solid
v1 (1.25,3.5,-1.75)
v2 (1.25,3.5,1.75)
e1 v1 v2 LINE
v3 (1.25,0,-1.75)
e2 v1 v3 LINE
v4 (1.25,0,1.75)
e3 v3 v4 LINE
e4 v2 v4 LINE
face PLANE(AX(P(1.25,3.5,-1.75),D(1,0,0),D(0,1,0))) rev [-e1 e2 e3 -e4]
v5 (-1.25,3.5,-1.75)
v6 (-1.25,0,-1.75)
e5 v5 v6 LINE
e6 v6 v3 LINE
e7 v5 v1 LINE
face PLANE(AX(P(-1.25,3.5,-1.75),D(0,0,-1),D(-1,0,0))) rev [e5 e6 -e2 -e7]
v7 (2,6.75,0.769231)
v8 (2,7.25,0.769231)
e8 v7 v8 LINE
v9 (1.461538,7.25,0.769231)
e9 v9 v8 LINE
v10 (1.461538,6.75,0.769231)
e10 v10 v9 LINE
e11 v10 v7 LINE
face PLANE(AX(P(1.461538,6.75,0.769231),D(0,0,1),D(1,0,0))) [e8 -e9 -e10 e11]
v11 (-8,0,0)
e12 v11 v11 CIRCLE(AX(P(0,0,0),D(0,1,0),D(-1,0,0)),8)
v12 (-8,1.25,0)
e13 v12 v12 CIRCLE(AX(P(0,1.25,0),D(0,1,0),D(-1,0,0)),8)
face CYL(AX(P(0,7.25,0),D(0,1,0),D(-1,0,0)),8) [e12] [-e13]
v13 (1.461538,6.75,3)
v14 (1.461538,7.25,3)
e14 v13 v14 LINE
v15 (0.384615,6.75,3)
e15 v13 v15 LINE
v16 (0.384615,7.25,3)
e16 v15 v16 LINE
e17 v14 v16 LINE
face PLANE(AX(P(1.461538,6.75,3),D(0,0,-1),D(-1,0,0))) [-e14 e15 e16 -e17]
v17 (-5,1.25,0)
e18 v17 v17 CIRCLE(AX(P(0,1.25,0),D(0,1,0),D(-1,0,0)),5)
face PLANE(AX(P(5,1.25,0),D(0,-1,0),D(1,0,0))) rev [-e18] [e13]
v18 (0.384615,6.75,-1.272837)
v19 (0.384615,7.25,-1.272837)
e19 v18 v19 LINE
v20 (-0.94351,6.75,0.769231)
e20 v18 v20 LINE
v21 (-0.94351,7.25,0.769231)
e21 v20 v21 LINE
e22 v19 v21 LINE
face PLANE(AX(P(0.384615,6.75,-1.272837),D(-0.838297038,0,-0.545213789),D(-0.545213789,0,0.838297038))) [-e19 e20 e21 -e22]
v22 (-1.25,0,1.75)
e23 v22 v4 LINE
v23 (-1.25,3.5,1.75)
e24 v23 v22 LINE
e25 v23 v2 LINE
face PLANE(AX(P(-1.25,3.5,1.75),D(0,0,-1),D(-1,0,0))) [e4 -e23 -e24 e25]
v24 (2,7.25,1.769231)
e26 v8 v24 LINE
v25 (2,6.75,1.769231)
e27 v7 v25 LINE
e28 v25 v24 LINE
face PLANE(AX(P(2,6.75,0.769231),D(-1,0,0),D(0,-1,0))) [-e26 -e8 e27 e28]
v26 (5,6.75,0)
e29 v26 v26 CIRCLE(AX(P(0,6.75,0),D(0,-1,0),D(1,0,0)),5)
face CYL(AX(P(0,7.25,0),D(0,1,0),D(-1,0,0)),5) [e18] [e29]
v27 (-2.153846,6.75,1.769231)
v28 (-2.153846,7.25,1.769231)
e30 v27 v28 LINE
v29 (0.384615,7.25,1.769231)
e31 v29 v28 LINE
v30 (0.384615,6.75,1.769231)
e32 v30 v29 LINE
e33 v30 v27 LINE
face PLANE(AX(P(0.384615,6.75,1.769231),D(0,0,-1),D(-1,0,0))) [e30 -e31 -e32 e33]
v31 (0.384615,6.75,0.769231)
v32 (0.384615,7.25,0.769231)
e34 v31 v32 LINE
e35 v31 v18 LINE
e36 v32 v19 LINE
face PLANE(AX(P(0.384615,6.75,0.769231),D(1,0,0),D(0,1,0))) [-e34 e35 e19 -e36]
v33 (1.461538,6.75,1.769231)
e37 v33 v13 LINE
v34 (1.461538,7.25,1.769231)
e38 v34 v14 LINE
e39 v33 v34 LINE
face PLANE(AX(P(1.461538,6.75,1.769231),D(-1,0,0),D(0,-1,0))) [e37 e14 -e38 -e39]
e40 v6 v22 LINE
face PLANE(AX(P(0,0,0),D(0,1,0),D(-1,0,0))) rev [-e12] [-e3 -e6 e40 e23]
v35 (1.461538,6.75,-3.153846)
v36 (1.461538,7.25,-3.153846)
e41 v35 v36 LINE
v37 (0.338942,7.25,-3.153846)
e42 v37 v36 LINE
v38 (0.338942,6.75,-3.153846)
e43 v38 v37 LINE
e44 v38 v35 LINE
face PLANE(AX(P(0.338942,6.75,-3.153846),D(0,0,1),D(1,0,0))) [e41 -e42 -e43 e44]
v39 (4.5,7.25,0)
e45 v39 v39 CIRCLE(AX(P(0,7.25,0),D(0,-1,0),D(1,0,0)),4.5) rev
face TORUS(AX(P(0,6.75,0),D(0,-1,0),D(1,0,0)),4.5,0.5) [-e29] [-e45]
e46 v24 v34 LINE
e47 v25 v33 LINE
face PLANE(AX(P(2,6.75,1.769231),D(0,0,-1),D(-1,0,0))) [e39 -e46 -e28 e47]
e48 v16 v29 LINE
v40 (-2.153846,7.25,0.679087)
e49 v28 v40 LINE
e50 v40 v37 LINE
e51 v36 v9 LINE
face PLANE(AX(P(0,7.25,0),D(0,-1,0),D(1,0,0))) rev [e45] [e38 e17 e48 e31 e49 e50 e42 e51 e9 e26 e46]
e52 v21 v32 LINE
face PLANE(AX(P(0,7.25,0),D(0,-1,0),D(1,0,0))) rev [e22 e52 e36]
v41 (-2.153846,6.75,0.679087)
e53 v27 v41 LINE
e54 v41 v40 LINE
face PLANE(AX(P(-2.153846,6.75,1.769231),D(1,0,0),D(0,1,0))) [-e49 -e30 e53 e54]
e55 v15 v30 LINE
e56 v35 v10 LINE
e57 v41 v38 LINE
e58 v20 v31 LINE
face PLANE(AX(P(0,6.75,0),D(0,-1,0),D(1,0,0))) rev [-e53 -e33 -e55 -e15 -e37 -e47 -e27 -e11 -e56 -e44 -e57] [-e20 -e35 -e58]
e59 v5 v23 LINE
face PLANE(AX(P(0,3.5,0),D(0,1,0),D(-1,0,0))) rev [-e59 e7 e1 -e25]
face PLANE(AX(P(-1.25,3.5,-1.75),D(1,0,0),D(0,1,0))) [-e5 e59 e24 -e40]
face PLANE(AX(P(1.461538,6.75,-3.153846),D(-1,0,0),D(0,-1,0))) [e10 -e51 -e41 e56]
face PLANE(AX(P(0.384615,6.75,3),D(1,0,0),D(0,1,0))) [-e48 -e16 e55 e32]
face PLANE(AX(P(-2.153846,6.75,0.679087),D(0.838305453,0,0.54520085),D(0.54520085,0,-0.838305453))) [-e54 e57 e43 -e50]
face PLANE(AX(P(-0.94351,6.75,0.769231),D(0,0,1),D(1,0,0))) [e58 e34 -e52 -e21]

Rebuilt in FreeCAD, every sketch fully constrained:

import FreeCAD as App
import Part
import Sketcher
Q = App.Units.Quantity


def edges_at(feature, points):
    """Names of the edges that pass closest to the given points."""
    edges = feature.Shape.Edges
    near = lambda p: min(range(len(edges)), key=lambda i: edges[i].distToShape(Part.Vertex(*p))[0])
    return sorted({f"Edge{near(p) + 1}" for p in points})

doc = App.newDocument("Part")
params = doc.addObject("Spreadsheet::Sheet", "Params")
for row, (alias, value) in enumerate([
    ("sketch1_width", "5 mm"),
    ("sketch1_width2", "8 mm"),
    ("sketch1_height", "6 mm"),
    ("sketch1_height2", "7.25 mm"),
    ("revolution_angle", "360 deg"),
    ("sketch2_width", "2.5 mm"),
    ("sketch2_height", "3.5 mm"),
    ("pocket1_length", "3.5 mm"),
    ("fillet_radius", "0.5 mm"),
    ("sketch3_height", "1 mm"),
    ("pocket2_length", "0.5 mm"),
], start=1):
    params.set(f"A{row}", alias)
    params.set(f"B{row}", "=" + value)
    params.setAlias(f"B{row}", alias)

body = doc.addObject("PartDesign::Body", "Body")

sketch1 = body.newObject("Sketcher::SketchObject", "Sketch")
sketch1.AttachmentSupport = (doc.getObject("XY_Plane"), [""])
sketch1.MapMode = "FlatFace"
sketch1.addGeometry([
    Part.LineSegment(App.Vector(5, 7.2, 0), App.Vector(0, 7.2, 0)),
    Part.LineSegment(App.Vector(0, 7.2, 0), App.Vector(0, 0, 0)),
    Part.LineSegment(App.Vector(0, 0, 0), App.Vector(8, 0, 0)),
    Part.LineSegment(App.Vector(8, 0, 0), App.Vector(8, 1.2, 0)),
    Part.LineSegment(App.Vector(8, 1.2, 0), App.Vector(5, 1.2, 0)),
    Part.LineSegment(App.Vector(5, 1.2, 0), App.Vector(5, 7.2, 0)),
], False)
sketch1.addConstraint([
    Sketcher.Constraint("Coincident", 0, 2, 1, 1),
    Sketcher.Constraint("Coincident", 1, 2, 2, 1),
    Sketcher.Constraint("Coincident", 2, 2, 3, 1),
    Sketcher.Constraint("Coincident", 3, 2, 4, 1),
    Sketcher.Constraint("Coincident", 4, 2, 5, 1),
    Sketcher.Constraint("Coincident", 5, 2, 0, 1),
    Sketcher.Constraint("Horizontal", 0),
    Sketcher.Constraint("Vertical", 1),
    Sketcher.Constraint("Horizontal", 2),
    Sketcher.Constraint("Vertical", 3),
    Sketcher.Constraint("Horizontal", 4),
    Sketcher.Constraint("Vertical", 5),
    Sketcher.Constraint("Coincident", 1, 2, -1, 1),
    Sketcher.Constraint("DistanceX", 0, 2, 0, 1, Q("5 mm")),
    Sketcher.Constraint("DistanceX", 2, 1, 2, 2, Q("8 mm")),
    Sketcher.Constraint("DistanceY", 5, 1, 5, 2, Q("6 mm")),
    Sketcher.Constraint("DistanceY", 1, 2, 1, 1, Q("7.25 mm")),
])
sketch1.setExpression("Constraints[13]", "Params.sketch1_width")
sketch1.setExpression("Constraints[14]", "Params.sketch1_width2")
sketch1.setExpression("Constraints[15]", "Params.sketch1_height")
sketch1.setExpression("Constraints[16]", "Params.sketch1_height2")
revolution = body.newObject("PartDesign::Revolution", "Revolution")
revolution.Profile = sketch1
revolution.ReferenceAxis = (sketch1, ["V_Axis"])
revolution.setExpression("Angle", "Params.revolution_angle")

sketch2 = body.newObject("Sketcher::SketchObject", "Sketch001")
sketch2.AttachmentSupport = (doc.getObject("XZ_Plane"), [""])
sketch2.MapMode = "FlatFace"
sketch2.addGeometry([
    Part.LineSegment(App.Vector(-1.2, 1.8, 0), App.Vector(-1.2, -1.8, 0)),
    Part.LineSegment(App.Vector(-1.2, -1.8, 0), App.Vector(1.2, -1.8, 0)),
    Part.LineSegment(App.Vector(1.2, -1.8, 0), App.Vector(1.2, 1.8, 0)),
    Part.LineSegment(App.Vector(1.2, 1.8, 0), App.Vector(-1.2, 1.8, 0)),
], False)
sketch2.addConstraint([
    Sketcher.Constraint("Coincident", 0, 2, 1, 1),
    Sketcher.Constraint("Coincident", 1, 2, 2, 1),
    Sketcher.Constraint("Coincident", 2, 2, 3, 1),
    Sketcher.Constraint("Coincident", 3, 2, 0, 1),
    Sketcher.Constraint("Vertical", 0),
    Sketcher.Constraint("Horizontal", 1),
    Sketcher.Constraint("Vertical", 2),
    Sketcher.Constraint("Horizontal", 3),
    Sketcher.Constraint("Symmetric", 0, 2, 2, 2, -1, 1),
    Sketcher.Constraint("DistanceX", 1, 1, 1, 2, Q("2.5 mm")),
    Sketcher.Constraint("DistanceY", 0, 2, 0, 1, Q("3.5 mm")),
])
sketch2.setExpression("Constraints[9]", "Params.sketch2_width")
sketch2.setExpression("Constraints[10]", "Params.sketch2_height")
pocket1 = body.newObject("PartDesign::Pocket", "Pocket")
pocket1.Profile = sketch2
pocket1.setExpression("Length", "Params.pocket1_length")
doc.recompute()

fillet = body.newObject("PartDesign::Fillet", "Fillet")
fillet.Base = (pocket1, edges_at(pocket1, [(5, 7.25, 0)]))
fillet.setExpression("Radius", "Params.fillet_radius")

sketch3 = body.newObject("Sketcher::SketchObject", "Sketch002")
sketch3.AttachmentSupport = (doc.getObject("XZ_Plane"), [""])
sketch3.MapMode = "FlatFace"
sketch3.AttachmentOffset = App.Placement(App.Vector(0, 0, -7.25), App.Rotation())
sketch3.addGeometry([
    Part.LineSegment(App.Vector(1.5, -3.2, 0), App.Vector(0.3, -3.2, 0)),
    Part.LineSegment(App.Vector(0.3, -3.2, 0), App.Vector(-2.2, 0.7, 0)),
    Part.LineSegment(App.Vector(-2.2, 0.7, 0), App.Vector(-2.2, 1.8, 0)),
    Part.LineSegment(App.Vector(-2.2, 1.8, 0), App.Vector(0.4, 1.8, 0)),
    Part.LineSegment(App.Vector(0.4, 1.8, 0), App.Vector(0.4, 3, 0)),
    Part.LineSegment(App.Vector(0.4, 3, 0), App.Vector(1.5, 3, 0)),
    Part.LineSegment(App.Vector(1.5, 3, 0), App.Vector(1.5, 1.8, 0)),
    Part.LineSegment(App.Vector(1.5, 1.8, 0), App.Vector(2, 1.8, 0)),
    Part.LineSegment(App.Vector(2, 1.8, 0), App.Vector(2, 0.8, 0)),
    Part.LineSegment(App.Vector(2, 0.8, 0), App.Vector(1.5, 0.8, 0)),
    Part.LineSegment(App.Vector(1.5, 0.8, 0), App.Vector(1.5, -3.2, 0)),
    Part.LineSegment(App.Vector(0.4, 0.8, 0), App.Vector(-0.9, 0.8, 0)),
    Part.LineSegment(App.Vector(-0.9, 0.8, 0), App.Vector(0.4, -1.3, 0)),
    Part.LineSegment(App.Vector(0.4, -1.3, 0), App.Vector(0.4, 0.8, 0)),
], False)
sketch3.addConstraint([
    Sketcher.Constraint("Coincident", 0, 2, 1, 1),
    Sketcher.Constraint("Coincident", 1, 2, 2, 1),
    Sketcher.Constraint("Coincident", 2, 2, 3, 1),
    Sketcher.Constraint("Coincident", 3, 2, 4, 1),
    Sketcher.Constraint("Coincident", 4, 2, 5, 1),
    Sketcher.Constraint("Coincident", 5, 2, 6, 1),
    Sketcher.Constraint("Coincident", 6, 2, 7, 1),
    Sketcher.Constraint("Coincident", 7, 2, 8, 1),
    Sketcher.Constraint("Coincident", 8, 2, 9, 1),
    Sketcher.Constraint("Coincident", 9, 2, 10, 1),
    Sketcher.Constraint("Coincident", 10, 2, 0, 1),
    Sketcher.Constraint("Coincident", 11, 2, 12, 1),
    Sketcher.Constraint("Coincident", 12, 2, 13, 1),
    Sketcher.Constraint("Coincident", 13, 2, 11, 1),
    Sketcher.Constraint("Horizontal", 0),
    Sketcher.Constraint("Vertical", 2),
    Sketcher.Constraint("Horizontal", 3),
    Sketcher.Constraint("Vertical", 4),
    Sketcher.Constraint("Horizontal", 5),
    Sketcher.Constraint("Vertical", 6),
    Sketcher.Constraint("Horizontal", 7),
    Sketcher.Constraint("Vertical", 8),
    Sketcher.Constraint("Horizontal", 9),
    Sketcher.Constraint("Vertical", 10),
    Sketcher.Constraint("Horizontal", 11),
    Sketcher.Constraint("Vertical", 13),
    Sketcher.Constraint("Horizontal", 3, 2, 6, 2),
    Sketcher.Constraint("Horizontal", 9, 2, 11, 2),
    Sketcher.Constraint("Vertical", 6, 2, 9, 2),
    Sketcher.Constraint("Vertical", 4, 2, 12, 2),
    Sketcher.Constraint("DistanceY", 8, 2, 8, 1, Q("1 mm")),
    Sketcher.Constraint("DistanceY", -1, 1, 4, 2, Q("3 mm")),
    Sketcher.Constraint("DistanceX", -1, 1, 7, 2, Q("2 mm")),
    Sketcher.Constraint("DistanceX", 3, 1, 3, 2, Q("2.538462 mm")),
    Sketcher.Constraint("DistanceX", 7, 1, 7, 2, Q("0.538462 mm")),
    Sketcher.Constraint("DistanceY", 4, 1, 4, 2, Q("1.230769 mm")),
    Sketcher.Constraint("Distance", 1, Q("4.572239 mm")),
    Sketcher.Constraint("Distance", 12, Q("2.435971 mm")),
    Sketcher.Constraint("DistanceX", 0, 2, 0, 1, Q("1.122596 mm")),
    Sketcher.Constraint("DistanceX", 5, 1, 5, 2, Q("1.076923 mm")),
    Sketcher.Constraint("DistanceX", 11, 2, 11, 1, Q("1.328125 mm")),
    Sketcher.Constraint("DistanceY", 2, 1, 2, 2, Q("1.090144 mm")),
])
sketch3.setExpression("Constraints[30]", "Params.sketch3_height")
pocket2 = body.newObject("PartDesign::Pocket", "Pocket001")
pocket2.Profile = sketch3
pocket2.setExpression("Length", "Params.pocket2_length")
pocket2.Reversed = True

doc.recompute()
